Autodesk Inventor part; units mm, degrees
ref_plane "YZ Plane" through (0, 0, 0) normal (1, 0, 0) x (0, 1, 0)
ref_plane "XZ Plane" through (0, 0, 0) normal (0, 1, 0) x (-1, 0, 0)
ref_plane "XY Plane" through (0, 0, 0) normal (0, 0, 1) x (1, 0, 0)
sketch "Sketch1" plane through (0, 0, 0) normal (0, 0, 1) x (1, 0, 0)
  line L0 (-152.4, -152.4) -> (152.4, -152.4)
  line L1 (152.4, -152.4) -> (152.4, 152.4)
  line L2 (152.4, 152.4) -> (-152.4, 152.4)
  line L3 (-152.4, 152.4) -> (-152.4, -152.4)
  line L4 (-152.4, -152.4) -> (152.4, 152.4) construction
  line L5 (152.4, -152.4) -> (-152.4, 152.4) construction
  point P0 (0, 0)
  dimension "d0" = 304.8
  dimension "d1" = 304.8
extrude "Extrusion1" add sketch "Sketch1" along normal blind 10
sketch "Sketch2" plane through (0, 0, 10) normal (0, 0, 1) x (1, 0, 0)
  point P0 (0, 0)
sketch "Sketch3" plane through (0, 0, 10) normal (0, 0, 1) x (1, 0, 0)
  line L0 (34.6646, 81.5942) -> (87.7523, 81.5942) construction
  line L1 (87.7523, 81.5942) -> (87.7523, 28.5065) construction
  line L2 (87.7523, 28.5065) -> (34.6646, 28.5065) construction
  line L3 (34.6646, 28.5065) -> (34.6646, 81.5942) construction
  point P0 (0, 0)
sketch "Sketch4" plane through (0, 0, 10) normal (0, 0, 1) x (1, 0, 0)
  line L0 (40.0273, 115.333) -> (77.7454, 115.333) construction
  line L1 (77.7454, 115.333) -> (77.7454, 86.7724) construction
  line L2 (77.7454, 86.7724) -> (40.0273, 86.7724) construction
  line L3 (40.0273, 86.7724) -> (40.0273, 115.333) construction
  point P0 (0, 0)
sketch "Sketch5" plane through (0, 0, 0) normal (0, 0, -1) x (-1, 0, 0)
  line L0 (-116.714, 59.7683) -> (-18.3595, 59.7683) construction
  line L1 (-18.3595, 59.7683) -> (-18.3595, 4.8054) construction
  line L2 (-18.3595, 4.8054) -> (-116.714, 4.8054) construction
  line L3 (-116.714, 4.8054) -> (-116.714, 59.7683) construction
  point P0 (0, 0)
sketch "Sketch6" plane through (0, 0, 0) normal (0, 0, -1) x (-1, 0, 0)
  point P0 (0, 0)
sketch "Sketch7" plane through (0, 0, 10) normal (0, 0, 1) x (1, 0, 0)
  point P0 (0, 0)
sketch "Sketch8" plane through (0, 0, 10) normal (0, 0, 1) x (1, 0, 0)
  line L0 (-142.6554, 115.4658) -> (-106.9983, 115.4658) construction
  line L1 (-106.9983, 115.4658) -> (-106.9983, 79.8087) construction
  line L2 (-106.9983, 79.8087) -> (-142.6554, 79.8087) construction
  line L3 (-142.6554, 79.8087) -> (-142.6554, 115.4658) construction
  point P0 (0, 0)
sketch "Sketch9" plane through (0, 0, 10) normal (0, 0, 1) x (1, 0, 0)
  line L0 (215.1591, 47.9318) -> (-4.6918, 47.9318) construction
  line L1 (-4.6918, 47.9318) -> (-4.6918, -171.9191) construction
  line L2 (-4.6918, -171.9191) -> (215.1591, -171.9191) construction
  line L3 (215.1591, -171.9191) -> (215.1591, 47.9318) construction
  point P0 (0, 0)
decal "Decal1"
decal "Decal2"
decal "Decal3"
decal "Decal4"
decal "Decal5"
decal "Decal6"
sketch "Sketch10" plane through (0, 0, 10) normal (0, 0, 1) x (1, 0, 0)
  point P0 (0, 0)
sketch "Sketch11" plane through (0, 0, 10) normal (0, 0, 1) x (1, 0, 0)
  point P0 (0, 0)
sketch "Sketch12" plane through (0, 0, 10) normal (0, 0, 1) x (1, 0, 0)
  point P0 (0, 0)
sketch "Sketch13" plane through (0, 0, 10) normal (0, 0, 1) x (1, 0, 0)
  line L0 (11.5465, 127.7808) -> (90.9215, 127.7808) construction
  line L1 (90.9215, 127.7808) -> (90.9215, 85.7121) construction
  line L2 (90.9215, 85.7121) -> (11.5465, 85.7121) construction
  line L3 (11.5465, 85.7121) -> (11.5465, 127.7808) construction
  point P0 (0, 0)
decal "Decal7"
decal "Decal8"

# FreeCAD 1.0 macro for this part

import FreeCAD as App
import Part
import Sketcher
Q = App.Units.Quantity


def add_polygon(sketch, points):
    """Adds a closed chain of lines whose ends are joined by coincident constraints."""
    first, n = sketch.GeometryCount, len(points)
    for a, b in zip(points, points[1:] + points[:1]):
        sketch.addGeometry(Part.LineSegment(App.Vector(*a, 0), App.Vector(*b, 0)), False)
    for i in range(n):
        sketch.addConstraint(Sketcher.Constraint("Coincident", first + i, 2, first + (i + 1) % n, 1))

doc = App.newDocument("Part")
body = doc.addObject("PartDesign::Body", "Body")

sketch1 = body.newObject("Sketcher::SketchObject", "Sketch")
sketch1.AttachmentSupport = (doc.getObject("XY_Plane"), [""])
sketch1.MapMode = "FlatFace"
add_polygon(sketch1, [(-152.4, 152.4), (-152.4, -152.4), (152.4, -152.4), (152.4, 152.4)])
sketch1.addConstraint([
    Sketcher.Constraint("Vertical", 0),
    Sketcher.Constraint("Horizontal", 1),
    Sketcher.Constraint("Vertical", 2),
    Sketcher.Constraint("Horizontal", 3),
    Sketcher.Constraint("Symmetric", 0, 2, 2, 2, -1, 1),
    Sketcher.Constraint("Equal", 3, 0),
    Sketcher.Constraint("DistanceX", 1, 1, 1, 2, Q("12 in")),
])
pad1 = body.newObject("PartDesign::Pad", "Pad")
pad1.Profile = sketch1
pad1.Length = Q("0.3937008 in")

doc.recompute()
